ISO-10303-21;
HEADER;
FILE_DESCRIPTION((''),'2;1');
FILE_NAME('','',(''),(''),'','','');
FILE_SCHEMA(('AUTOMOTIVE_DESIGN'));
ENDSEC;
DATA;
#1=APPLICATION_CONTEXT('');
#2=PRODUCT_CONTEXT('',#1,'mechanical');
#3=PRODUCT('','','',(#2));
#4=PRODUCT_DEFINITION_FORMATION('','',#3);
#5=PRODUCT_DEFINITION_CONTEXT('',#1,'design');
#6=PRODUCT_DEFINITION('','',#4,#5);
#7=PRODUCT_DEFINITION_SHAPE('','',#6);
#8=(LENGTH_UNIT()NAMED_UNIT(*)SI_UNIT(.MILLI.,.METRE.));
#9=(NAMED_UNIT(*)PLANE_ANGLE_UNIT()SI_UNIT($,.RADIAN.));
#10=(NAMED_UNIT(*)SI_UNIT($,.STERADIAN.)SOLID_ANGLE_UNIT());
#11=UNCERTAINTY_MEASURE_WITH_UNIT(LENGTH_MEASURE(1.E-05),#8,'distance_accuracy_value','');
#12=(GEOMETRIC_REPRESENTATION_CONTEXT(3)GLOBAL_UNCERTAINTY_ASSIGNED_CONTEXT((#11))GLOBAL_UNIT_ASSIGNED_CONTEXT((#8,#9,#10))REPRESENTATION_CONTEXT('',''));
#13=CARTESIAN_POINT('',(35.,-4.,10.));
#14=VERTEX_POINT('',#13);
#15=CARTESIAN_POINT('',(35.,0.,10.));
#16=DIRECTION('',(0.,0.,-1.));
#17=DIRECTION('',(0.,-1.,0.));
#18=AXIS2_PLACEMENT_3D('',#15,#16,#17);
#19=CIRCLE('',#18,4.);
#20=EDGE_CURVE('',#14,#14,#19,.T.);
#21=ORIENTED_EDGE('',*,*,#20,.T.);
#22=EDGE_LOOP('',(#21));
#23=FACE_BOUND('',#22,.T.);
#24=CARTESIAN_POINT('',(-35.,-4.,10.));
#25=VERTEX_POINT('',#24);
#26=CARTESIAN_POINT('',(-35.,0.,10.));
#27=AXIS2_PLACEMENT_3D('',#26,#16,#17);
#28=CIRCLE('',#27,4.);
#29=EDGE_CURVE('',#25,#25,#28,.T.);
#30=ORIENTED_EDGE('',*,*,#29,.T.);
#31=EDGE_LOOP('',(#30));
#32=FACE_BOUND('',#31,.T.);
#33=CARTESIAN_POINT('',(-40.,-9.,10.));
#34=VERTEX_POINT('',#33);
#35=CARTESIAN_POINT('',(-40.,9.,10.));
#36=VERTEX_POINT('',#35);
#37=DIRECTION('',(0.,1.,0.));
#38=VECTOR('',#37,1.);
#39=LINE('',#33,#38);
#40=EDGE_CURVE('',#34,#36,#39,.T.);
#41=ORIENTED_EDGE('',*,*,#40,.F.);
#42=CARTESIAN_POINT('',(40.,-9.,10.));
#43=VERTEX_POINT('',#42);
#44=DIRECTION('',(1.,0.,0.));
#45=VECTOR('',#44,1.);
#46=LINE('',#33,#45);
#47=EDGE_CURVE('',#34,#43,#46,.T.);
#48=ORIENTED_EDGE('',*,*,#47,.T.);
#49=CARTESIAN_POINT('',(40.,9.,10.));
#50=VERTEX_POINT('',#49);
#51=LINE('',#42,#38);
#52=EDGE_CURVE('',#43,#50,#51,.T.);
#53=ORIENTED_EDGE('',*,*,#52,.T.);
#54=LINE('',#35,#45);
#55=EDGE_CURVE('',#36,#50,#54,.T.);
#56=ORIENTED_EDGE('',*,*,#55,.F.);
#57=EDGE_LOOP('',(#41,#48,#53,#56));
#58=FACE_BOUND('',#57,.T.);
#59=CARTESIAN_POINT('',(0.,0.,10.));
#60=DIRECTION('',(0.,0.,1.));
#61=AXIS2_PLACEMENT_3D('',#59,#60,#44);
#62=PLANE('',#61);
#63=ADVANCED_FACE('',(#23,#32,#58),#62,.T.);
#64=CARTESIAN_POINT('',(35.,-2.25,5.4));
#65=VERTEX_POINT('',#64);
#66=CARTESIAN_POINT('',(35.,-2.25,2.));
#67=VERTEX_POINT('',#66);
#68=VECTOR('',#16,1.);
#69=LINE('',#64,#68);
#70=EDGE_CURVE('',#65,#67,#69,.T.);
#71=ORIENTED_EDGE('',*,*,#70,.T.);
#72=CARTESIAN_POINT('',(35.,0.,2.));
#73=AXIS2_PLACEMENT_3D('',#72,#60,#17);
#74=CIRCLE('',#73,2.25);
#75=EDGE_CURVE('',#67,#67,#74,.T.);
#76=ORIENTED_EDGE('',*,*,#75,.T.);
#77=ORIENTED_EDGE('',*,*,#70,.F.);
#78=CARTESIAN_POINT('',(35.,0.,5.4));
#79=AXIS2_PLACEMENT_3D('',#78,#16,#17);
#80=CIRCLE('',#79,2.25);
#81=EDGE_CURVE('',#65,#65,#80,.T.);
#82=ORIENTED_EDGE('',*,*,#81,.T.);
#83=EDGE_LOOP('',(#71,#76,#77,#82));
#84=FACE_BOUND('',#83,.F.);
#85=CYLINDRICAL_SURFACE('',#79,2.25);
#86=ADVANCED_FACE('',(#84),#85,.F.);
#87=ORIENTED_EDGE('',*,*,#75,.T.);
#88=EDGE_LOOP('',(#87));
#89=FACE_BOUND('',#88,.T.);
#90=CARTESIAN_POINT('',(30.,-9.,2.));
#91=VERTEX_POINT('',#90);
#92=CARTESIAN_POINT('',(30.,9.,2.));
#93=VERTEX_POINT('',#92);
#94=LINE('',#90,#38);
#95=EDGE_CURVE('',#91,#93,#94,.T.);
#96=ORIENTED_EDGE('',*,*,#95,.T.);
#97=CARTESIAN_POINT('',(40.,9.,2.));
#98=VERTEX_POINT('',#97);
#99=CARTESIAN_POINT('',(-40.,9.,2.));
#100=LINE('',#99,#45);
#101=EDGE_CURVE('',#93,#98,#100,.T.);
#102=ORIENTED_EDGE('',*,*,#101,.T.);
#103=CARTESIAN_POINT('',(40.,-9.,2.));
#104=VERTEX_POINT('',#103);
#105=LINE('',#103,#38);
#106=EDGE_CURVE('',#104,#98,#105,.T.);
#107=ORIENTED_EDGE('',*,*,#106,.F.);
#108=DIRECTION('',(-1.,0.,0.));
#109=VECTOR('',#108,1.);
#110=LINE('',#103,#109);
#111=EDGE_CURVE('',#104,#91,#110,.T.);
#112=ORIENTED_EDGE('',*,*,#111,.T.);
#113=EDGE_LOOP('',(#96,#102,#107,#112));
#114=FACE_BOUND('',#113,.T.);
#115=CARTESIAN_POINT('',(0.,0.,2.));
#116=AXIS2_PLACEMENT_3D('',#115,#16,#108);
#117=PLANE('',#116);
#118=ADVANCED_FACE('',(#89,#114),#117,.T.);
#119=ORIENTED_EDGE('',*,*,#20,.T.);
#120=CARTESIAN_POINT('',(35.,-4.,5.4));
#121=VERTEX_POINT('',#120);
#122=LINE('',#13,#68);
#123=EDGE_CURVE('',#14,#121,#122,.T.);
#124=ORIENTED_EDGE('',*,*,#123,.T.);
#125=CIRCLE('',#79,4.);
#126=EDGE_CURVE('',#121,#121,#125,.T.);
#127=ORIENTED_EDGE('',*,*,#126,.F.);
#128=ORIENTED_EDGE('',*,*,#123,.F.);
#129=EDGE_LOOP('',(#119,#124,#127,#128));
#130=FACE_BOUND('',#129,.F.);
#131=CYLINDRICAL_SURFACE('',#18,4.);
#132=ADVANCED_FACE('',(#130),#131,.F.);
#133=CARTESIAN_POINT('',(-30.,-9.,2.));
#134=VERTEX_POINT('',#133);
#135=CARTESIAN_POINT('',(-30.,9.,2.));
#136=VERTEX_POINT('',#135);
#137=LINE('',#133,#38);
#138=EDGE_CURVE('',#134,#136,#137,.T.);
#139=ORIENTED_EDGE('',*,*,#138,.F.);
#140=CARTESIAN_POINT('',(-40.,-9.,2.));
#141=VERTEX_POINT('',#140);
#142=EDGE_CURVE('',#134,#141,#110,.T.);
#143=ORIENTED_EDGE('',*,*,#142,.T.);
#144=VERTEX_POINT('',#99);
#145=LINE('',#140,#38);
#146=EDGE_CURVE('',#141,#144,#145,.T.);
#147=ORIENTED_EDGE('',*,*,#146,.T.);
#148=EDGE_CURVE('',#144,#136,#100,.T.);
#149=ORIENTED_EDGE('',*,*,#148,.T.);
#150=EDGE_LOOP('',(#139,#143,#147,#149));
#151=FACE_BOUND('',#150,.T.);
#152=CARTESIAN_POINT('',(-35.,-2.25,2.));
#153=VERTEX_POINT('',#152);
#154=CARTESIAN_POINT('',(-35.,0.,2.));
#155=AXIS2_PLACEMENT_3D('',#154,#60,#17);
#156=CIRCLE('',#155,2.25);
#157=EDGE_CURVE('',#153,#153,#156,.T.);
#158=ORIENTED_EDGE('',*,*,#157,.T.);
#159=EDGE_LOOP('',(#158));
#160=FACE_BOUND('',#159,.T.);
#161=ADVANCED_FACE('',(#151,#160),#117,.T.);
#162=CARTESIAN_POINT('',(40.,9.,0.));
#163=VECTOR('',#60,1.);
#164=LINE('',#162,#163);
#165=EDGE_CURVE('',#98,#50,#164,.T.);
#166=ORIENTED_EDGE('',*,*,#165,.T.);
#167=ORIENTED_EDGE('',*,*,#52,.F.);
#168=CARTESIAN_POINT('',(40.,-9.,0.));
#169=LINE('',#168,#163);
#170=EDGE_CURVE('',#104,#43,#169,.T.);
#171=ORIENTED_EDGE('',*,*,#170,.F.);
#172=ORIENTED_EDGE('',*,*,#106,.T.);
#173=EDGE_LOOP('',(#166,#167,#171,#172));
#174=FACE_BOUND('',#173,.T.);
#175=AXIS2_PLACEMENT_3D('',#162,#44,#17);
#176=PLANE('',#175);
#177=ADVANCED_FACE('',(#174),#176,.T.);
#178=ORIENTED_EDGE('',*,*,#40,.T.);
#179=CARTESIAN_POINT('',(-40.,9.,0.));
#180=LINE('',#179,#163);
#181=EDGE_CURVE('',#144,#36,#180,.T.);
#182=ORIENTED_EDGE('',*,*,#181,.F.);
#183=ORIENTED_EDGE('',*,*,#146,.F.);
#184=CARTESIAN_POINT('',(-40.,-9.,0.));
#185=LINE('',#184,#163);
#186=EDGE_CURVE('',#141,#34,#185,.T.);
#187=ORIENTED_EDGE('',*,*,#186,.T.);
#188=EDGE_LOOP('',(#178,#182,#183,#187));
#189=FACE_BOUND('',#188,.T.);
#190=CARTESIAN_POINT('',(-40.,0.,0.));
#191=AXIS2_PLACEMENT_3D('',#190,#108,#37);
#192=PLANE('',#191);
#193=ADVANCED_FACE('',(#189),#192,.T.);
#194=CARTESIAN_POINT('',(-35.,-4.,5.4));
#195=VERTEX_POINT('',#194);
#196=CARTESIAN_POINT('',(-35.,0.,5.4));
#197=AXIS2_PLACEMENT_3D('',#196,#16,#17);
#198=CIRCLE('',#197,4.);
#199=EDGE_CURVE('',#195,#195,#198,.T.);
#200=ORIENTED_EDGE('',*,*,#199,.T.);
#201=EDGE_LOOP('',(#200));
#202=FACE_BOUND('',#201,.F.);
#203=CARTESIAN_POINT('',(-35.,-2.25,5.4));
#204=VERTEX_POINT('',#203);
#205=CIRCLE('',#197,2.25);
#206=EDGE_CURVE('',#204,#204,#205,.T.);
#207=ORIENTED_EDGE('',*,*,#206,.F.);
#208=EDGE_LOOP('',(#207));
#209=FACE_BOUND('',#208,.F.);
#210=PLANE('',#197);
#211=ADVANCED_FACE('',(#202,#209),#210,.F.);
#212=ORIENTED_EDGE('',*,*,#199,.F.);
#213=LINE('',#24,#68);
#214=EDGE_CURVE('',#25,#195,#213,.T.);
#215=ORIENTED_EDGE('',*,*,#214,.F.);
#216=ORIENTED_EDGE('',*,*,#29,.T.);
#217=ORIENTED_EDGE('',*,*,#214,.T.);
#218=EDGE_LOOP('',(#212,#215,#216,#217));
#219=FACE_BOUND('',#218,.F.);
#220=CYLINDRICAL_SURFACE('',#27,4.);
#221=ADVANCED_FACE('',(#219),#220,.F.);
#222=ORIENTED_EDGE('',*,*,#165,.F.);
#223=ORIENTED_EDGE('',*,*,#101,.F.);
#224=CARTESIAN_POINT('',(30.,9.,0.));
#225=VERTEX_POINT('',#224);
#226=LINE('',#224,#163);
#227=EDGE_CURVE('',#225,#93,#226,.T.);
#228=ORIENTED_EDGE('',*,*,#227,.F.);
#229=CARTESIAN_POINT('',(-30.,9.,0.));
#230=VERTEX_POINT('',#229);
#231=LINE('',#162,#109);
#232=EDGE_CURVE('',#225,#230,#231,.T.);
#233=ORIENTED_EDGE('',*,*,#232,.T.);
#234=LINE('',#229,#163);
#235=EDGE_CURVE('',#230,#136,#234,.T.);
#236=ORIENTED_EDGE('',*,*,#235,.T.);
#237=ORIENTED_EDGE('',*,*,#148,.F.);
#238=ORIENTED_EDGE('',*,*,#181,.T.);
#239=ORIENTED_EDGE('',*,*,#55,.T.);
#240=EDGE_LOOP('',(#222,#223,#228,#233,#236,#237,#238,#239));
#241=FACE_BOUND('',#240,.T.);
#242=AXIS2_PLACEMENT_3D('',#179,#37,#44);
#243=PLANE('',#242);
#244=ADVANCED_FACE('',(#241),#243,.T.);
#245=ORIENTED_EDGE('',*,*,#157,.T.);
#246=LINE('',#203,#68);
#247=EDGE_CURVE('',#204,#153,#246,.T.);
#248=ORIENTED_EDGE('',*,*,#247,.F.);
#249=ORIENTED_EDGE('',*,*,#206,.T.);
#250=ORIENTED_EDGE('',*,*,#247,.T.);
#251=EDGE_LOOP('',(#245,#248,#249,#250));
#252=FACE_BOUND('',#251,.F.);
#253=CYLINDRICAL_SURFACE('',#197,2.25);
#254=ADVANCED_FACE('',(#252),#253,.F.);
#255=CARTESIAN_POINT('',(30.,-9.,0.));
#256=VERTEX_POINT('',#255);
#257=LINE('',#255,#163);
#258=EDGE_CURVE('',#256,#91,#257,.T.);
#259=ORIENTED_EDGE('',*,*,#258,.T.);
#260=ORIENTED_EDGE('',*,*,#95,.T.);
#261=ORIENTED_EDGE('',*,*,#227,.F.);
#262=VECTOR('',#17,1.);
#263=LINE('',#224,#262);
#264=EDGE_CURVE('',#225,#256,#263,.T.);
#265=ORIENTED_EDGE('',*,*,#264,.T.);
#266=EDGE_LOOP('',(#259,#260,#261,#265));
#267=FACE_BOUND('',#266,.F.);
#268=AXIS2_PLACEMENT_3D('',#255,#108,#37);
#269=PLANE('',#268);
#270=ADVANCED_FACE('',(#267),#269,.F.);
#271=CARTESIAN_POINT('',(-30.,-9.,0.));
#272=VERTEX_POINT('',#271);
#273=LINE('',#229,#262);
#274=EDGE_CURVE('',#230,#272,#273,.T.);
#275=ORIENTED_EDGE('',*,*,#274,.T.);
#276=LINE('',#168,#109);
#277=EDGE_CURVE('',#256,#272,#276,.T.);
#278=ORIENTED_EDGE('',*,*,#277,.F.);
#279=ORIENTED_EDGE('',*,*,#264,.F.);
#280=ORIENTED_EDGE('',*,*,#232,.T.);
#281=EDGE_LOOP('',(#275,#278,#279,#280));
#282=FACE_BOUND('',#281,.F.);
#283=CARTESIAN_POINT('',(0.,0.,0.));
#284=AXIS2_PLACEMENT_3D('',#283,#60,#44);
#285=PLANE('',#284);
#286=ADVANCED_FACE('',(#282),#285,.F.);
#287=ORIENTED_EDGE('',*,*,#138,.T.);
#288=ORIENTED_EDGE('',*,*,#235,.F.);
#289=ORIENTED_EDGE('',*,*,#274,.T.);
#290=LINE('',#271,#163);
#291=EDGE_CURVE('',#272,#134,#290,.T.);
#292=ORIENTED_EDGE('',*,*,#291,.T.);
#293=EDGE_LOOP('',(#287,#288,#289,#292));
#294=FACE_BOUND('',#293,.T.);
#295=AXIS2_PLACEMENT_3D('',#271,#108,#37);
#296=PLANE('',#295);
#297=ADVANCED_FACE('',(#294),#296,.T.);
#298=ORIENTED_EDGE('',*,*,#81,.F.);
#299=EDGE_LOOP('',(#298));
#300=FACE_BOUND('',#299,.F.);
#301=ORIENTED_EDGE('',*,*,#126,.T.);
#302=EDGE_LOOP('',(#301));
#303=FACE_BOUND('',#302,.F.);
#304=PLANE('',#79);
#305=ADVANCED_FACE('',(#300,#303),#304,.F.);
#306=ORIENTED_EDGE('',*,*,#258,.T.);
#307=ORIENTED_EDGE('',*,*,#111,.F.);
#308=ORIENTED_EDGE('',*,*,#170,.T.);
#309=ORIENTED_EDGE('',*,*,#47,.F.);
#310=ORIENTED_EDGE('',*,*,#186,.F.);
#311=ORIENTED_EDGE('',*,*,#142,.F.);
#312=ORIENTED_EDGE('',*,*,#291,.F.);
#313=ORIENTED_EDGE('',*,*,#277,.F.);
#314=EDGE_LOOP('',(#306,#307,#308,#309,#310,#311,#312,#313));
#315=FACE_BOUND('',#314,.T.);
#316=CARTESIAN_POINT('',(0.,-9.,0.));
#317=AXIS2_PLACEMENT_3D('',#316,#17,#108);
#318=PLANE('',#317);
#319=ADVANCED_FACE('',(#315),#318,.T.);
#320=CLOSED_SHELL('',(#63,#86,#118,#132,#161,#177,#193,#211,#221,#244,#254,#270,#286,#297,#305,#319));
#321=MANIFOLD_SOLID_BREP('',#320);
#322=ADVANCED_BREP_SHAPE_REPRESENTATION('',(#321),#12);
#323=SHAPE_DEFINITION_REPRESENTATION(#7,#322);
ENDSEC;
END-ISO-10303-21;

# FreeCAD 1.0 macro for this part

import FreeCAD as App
import Part
import Sketcher
from FreeCAD import Vector

doc = App.newDocument("Part")
body = doc.addObject("PartDesign::Body", "Body")

# Sketch on XY plane
sketch1 = body.newObject("Sketcher::SketchObject", "Sketch")
sketch1.AttachmentSupport = (doc.getObject("XY_Plane"), [""])
sketch1.MapMode = "FlatFace"
sketch1.addGeometry([
    Part.LineSegment(Vector(-40, 9, 0), Vector(-40, -9, 0)),
    Part.LineSegment(Vector(-40, -9, 0), Vector(40, -9, 0)),
    Part.LineSegment(Vector(40, -9, 0), Vector(40, 9, 0)),
    Part.LineSegment(Vector(40, 9, 0), Vector(-40, 9, 0)),
], False)
sketch1.addConstraint([
    Sketcher.Constraint("Coincident", 0, 2, 1, 1),
    Sketcher.Constraint("Coincident", 1, 2, 2, 1),
    Sketcher.Constraint("Coincident", 2, 2, 3, 1),
    Sketcher.Constraint("Coincident", 3, 2, 0, 1),
    Sketcher.Constraint("Vertical", 0),
    Sketcher.Constraint("Horizontal", 1),
    Sketcher.Constraint("Vertical", 2),
    Sketcher.Constraint("Horizontal", 3),
    Sketcher.Constraint("Symmetric", 0, 2, 2, 2, -1, 1),
    Sketcher.Constraint("DistanceX", 1, 1, 1, 2, 80.0),
    Sketcher.Constraint("DistanceY", 0, 2, 0, 1, 18.0),
])
pad1 = body.newObject("PartDesign::Pad", "Pad")
pad1.Profile = sketch1
pad1.Length = 10

# Sketch on XY plane
sketch2 = body.newObject("Sketcher::SketchObject", "Sketch001")
sketch2.AttachmentSupport = (doc.getObject("XY_Plane"), [""])
sketch2.MapMode = "FlatFace"
sketch2.AttachmentOffset = App.Placement(Vector(0, 0, 10), App.Rotation())
sketch2.addGeometry([
    Part.Circle(Vector(-35, 0, 0), Vector(0, 0, 1), 2.2),
    Part.Circle(Vector(35, 0, 0), Vector(0, 0, 1), 2.2),
], False)
sketch2.addConstraint([
    Sketcher.Constraint("Equal", 0, 1),
    Sketcher.Constraint("Symmetric", 0, 3, 1, 3, -1, 1),
    Sketcher.Constraint("PointOnObject", 0, 3, -1),
    Sketcher.Constraint("Diameter", 0, 4.5),
    Sketcher.Constraint("DistanceX", 0, 3, -1, 1, 35.0),
])
doc.recompute()
hole = body.newObject("PartDesign::Hole", "Hole")
hole.Profile = sketch2
hole.ThreadType = "None"
hole.Diameter = 4.5
hole.DepthType = "ThroughAll"
hole.HoleCutType = "Counterbore"
hole.HoleCutDiameter = 8
hole.HoleCutDepth = 4.6

# Sketch on XY plane
sketch3 = body.newObject("Sketcher::SketchObject", "Sketch002")
sketch3.AttachmentSupport = (doc.getObject("XY_Plane"), [""])
sketch3.MapMode = "FlatFace"
sketch3.addGeometry([
    Part.LineSegment(Vector(-40, -9, 0), Vector(-40, 9, 0)),  # 0
    Part.LineSegment(Vector(-40, 9, 0), Vector(-30, 9, 0)),  # 1
    Part.LineSegment(Vector(-30, 9, 0), Vector(-30, -9, 0)),  # 2
    Part.LineSegment(Vector(-30, -9, 0), Vector(-40, -9, 0)),  # 3
    Part.Circle(Vector(-35, 0, 0), Vector(0, 0, 1), 2.2),  # 4
    Part.LineSegment(Vector(30, -9, 0), Vector(30, 9, 0)),  # 5
    Part.LineSegment(Vector(30, 9, 0), Vector(40, 9, 0)),  # 6
    Part.LineSegment(Vector(40, 9, 0), Vector(40, -9, 0)),  # 7
    Part.LineSegment(Vector(40, -9, 0), Vector(30, -9, 0)),  # 8
    Part.Circle(Vector(35, 0, 0), Vector(0, 0, 1), 2.2),  # 9
], False)
sketch3.addConstraint([
    Sketcher.Constraint("Coincident", 0, 2, 1, 1),
    Sketcher.Constraint("Coincident", 1, 2, 2, 1),
    Sketcher.Constraint("Coincident", 2, 2, 3, 1),
    Sketcher.Constraint("Coincident", 3, 2, 0, 1),
    Sketcher.Constraint("Coincident", 5, 2, 6, 1),
    Sketcher.Constraint("Coincident", 6, 2, 7, 1),
    Sketcher.Constraint("Coincident", 7, 2, 8, 1),
    Sketcher.Constraint("Coincident", 8, 2, 5, 1),
    Sketcher.Constraint("Vertical", 0),
    Sketcher.Constraint("Horizontal", 1),
    Sketcher.Constraint("Vertical", 2),
    Sketcher.Constraint("Horizontal", 3),
    Sketcher.Constraint("Vertical", 5),
    Sketcher.Constraint("Horizontal", 6),
    Sketcher.Constraint("Vertical", 7),
    Sketcher.Constraint("Horizontal", 8),
    Sketcher.Constraint("Equal", 4, 9),
    Sketcher.Constraint("Symmetric", 4, 3, 9, 3, -1, 1),
    Sketcher.Constraint("Symmetric", 2, 2, 5, 2, -1, 1),
    Sketcher.Constraint("Symmetric", 0, 2, 7, 2, -1, 1),
    Sketcher.Constraint("PointOnObject", 4, 3, -1),
    Sketcher.Constraint("Horizontal", 1, 2, 5, 2),
    Sketcher.Constraint("DistanceX", 1, 2, 5, 2, 60.0),
    Sketcher.Constraint("Diameter", 4, 4.5),
    Sketcher.Constraint("DistanceX", 1, 1, 1, 2, 10.0),
    Sketcher.Constraint("DistanceY", 0, 1, 0, 2, 18.0),
    Sketcher.Constraint("DistanceX", 4, 3, -1, 1, 35.0),
])
pocket1 = body.newObject("PartDesign::Pocket", "Pocket")
pocket1.Profile = sketch3
pocket1.Length = 2
pocket1.Reversed = True

doc.recompute()
